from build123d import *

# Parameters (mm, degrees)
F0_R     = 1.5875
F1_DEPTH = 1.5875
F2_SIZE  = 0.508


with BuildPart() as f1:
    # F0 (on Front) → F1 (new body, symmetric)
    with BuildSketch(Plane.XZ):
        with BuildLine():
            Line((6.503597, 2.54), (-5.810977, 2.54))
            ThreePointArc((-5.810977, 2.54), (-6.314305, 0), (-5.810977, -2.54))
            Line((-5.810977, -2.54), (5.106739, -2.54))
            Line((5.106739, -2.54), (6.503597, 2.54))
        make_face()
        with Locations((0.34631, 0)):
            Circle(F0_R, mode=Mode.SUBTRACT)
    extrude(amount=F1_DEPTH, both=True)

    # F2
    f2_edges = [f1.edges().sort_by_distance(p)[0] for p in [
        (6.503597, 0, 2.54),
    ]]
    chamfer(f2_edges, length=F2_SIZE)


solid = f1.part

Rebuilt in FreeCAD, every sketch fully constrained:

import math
import FreeCAD as App
import Part
import Sketcher

V = App.Vector
Q = App.Units.Quantity


def edges_at(feature, points):
    """Names of the edges that pass closest to the given points."""
    edges = feature.Shape.Edges
    near = lambda p: min(range(len(edges)), key=lambda i: edges[i].distToShape(Part.Vertex(*p))[0])
    return sorted({f"Edge{near(p) + 1}" for p in points})

doc = App.newDocument("Part")
body = doc.addObject("PartDesign::Body", "Body")

# Sketch on XZ plane
sketch1 = doc.addObject("Sketcher::SketchObject", "Sketch")
body.addObject(sketch1)
sketch1.AttachmentSupport = (doc.XZ_Plane, [""])
sketch1.MapMode = "FlatFace"
sketch1.addGeometry([
    Part.LineSegment(V(6.5, 2.5, 0), V(-5.8, 2.5, 0)),  # 0
    Part.ArcOfCircle(Part.Circle(V(0.3, 0, 0), V(0, 0, 1), 6.7), math.radians(158), math.radians(202)),  # 1
    Part.LineSegment(V(-5.8, -2.5, 0), V(5.1, -2.5, 0)),  # 2
    Part.LineSegment(V(5.1, -2.5, 0), V(6.5, 2.5, 0)),  # 3
    Part.Circle(V(0.3, 0, 0), V(0, 0, 1), 1.6),  # 4
], False)
sketch1.addConstraint([
    Sketcher.Constraint("Coincident", 0, 2, 1, 1),
    Sketcher.Constraint("Coincident", 1, 2, 2, 1),
    Sketcher.Constraint("Coincident", 2, 2, 3, 1),
    Sketcher.Constraint("Coincident", 3, 2, 0, 1),
    Sketcher.Constraint("Horizontal", 0),
    Sketcher.Constraint("Horizontal", 2),
    Sketcher.Constraint("Coincident", 4, 3, 1, 3),
    Sketcher.Constraint("Symmetric", 0, 2, 1, 2, -1),
    Sketcher.Constraint("Diameter", 4, Q("0.125 in")),
    Sketcher.Constraint("DistanceY", -1, 1, 0, 2, Q("0.1 in")),
    Sketcher.Constraint("Radius", 1, Q("6.660606 mm")),
    Sketcher.Constraint("DistanceX", -1, 1, 1, 3, Q("0.346301 mm")),
    Sketcher.Constraint("Distance", 3, Q("5.268549 mm")),
    Sketcher.Constraint("DistanceX", 0, 2, 0, 1, Q("12.314574 mm")),
])
pad1 = doc.addObject("PartDesign::Pad", "Pad")
body.addObject(pad1)
pad1.Profile = sketch1
pad1.Length = Q("0.125 in")
pad1.Midplane = True
doc.recompute()

chamfer = doc.addObject("PartDesign::Chamfer", "Chamfer")
body.addObject(chamfer)
chamfer.Base = (pad1, edges_at(pad1, [(6.504, 0, 2.54)]))
chamfer.Size = Q("0.02 in")

doc.recompute()
